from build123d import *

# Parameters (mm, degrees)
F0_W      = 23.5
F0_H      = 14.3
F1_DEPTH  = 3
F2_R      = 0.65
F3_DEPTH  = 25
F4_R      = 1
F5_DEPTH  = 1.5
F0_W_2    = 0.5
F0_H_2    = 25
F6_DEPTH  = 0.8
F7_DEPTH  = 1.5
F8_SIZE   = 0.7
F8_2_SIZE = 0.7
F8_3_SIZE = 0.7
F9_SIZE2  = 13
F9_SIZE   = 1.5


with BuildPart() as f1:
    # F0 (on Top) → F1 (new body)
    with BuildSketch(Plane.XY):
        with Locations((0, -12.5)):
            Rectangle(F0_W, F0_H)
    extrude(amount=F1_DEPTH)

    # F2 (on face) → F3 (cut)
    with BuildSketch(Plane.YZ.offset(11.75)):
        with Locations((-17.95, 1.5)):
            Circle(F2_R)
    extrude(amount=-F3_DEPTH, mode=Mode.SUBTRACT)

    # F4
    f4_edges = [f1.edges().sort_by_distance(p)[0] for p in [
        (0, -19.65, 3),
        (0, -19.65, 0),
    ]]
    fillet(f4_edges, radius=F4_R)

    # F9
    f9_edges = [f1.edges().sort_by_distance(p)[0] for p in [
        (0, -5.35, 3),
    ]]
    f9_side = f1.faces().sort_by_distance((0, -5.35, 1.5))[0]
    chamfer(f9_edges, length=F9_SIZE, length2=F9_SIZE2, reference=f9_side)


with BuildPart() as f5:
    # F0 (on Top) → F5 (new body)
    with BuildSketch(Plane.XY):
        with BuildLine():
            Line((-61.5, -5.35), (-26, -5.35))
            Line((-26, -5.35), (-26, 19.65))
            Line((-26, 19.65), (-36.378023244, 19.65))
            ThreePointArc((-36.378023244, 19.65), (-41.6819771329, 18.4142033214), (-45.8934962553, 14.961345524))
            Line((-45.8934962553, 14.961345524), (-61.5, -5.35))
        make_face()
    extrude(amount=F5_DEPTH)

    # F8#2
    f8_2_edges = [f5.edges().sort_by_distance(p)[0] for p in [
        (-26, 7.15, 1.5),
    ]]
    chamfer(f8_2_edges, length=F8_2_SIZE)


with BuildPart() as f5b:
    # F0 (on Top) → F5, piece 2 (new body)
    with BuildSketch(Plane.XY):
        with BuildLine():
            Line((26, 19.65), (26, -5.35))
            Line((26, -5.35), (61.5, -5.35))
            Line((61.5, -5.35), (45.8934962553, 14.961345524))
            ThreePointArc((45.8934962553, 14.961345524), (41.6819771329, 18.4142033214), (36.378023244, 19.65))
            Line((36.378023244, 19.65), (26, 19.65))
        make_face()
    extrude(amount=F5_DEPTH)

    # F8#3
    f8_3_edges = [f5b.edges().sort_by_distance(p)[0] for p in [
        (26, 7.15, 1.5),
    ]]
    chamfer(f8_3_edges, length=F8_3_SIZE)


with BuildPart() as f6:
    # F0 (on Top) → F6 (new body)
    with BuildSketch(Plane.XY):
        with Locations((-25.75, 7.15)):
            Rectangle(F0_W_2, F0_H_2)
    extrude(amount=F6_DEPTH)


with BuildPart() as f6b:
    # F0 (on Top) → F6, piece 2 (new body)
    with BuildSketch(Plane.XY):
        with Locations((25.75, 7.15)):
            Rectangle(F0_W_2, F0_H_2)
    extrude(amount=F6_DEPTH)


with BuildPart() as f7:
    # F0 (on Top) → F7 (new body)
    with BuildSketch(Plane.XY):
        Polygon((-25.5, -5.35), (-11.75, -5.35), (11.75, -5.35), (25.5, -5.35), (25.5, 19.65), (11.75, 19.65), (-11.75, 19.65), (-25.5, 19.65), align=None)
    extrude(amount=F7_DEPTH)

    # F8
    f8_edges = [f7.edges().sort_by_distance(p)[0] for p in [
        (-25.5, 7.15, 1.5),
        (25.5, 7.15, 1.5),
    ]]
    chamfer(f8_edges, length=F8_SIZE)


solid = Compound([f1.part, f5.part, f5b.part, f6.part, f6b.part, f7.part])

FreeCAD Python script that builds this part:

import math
import FreeCAD as App
import Part
import Sketcher

V = App.Vector


def edges_at(feature, points):
    """Names of the edges that pass closest to the given points."""
    edges = feature.Shape.Edges
    near = lambda p: min(range(len(edges)), key=lambda i: edges[i].distToShape(Part.Vertex(*p))[0])
    return sorted({f"Edge{near(p) + 1}" for p in points})

doc = App.newDocument("Part")
params = doc.addObject("Spreadsheet::Sheet", "Params")
for row, (alias, value) in enumerate([
    ("sketch1_width", "23.5 mm"),
    ("sketch1_height", "14.3 mm"),
    ("pad1_length", "3 mm"),
    ("sketch2_diameter", "1.3 mm"),
    ("pocket1_length", "25 mm"),
    ("fillet_radius", "1 mm"),
    ("chamfer_size", "1.5 mm"),
    ("chamfer_size2", "13 mm"),
    ("sketch3_radius", "12 mm"),
    ("sketch3_height", "25 mm"),
    ("sketch3_width", "35.5 mm"),
    ("pad2_length", "1.5 mm"),
    ("chamfer2_size", "0.7 mm"),
    ("sketch4_radius", "12 mm"),
    ("sketch4_height", "25 mm"),
    ("sketch4_width", "35.5 mm"),
    ("pad3_length", "1.5 mm"),
    ("chamfer3_size", "0.7 mm"),
    ("sketch5_height", "25 mm"),
    ("sketch5_width", "0.5 mm"),
    ("pad4_length", "0.8 mm"),
    ("sketch6_height", "25 mm"),
    ("sketch6_width", "0.5 mm"),
    ("pad5_length", "0.8 mm"),
    ("sketch7_width", "51 mm"),
    ("sketch7_height", "25 mm"),
    ("pad6_length", "1.5 mm"),
    ("chamfer4_size", "0.7 mm"),
], start=1):
    params.set(f"A{row}", alias)
    params.set(f"B{row}", "=" + value)
    params.setAlias(f"B{row}", alias)

body = doc.addObject("PartDesign::Body", "Body")

sketch1 = body.newObject("Sketcher::SketchObject", "Sketch")
sketch1.AttachmentSupport = (doc.getObject("XY_Plane"), [""])
sketch1.MapMode = "FlatFace"
sketch1.addGeometry([
    Part.LineSegment(V(-12, -5, 0), V(-12, -20, 0)),
    Part.LineSegment(V(-12, -20, 0), V(12, -20, 0)),
    Part.LineSegment(V(12, -20, 0), V(12, -5, 0)),
    Part.LineSegment(V(12, -5, 0), V(-12, -5, 0)),
], False)
sketch1.addConstraint([
    Sketcher.Constraint("Coincident", 0, 2, 1, 1),
    Sketcher.Constraint("Coincident", 1, 2, 2, 1),
    Sketcher.Constraint("Coincident", 2, 2, 3, 1),
    Sketcher.Constraint("Coincident", 3, 2, 0, 1),
    Sketcher.Constraint("Vertical", 0),
    Sketcher.Constraint("Horizontal", 1),
    Sketcher.Constraint("Vertical", 2),
    Sketcher.Constraint("Horizontal", 3),
    Sketcher.Constraint("DistanceX", 1, 1, 1, 2, 23.5),
    Sketcher.Constraint("DistanceY", 0, 2, 0, 1, 14.3),
    Sketcher.Constraint("DistanceX", 0, 2, -1, 1, 11.75),
    Sketcher.Constraint("DistanceY", 0, 2, -1, 1, 19.65),
])
sketch1.setExpression("Constraints[8]", "Params.sketch1_width")
sketch1.setExpression("Constraints[9]", "Params.sketch1_height")
pad1 = body.newObject("PartDesign::Pad", "Pad")
pad1.Profile = sketch1
pad1.setExpression("Length", "Params.pad1_length")

sketch2 = body.newObject("Sketcher::SketchObject", "Sketch001")
sketch2.AttachmentSupport = (doc.getObject("YZ_Plane"), [""])
sketch2.MapMode = "FlatFace"
sketch2.AttachmentOffset = App.Placement(V(0, 0, 11.75), App.Rotation())
sketch2.addGeometry(Part.Circle(V(-17.9, 1.5, 0), V(0, 0, 1), 0.7), False)
sketch2.addConstraint([
    Sketcher.Constraint("Diameter", 0, 1.3),
    Sketcher.Constraint("DistanceY", -1, 1, 0, 3, 1.5),
    Sketcher.Constraint("DistanceX", 0, 3, -1, 1, 17.95),
])
sketch2.setExpression("Constraints[0]", "Params.sketch2_diameter")
pocket1 = body.newObject("PartDesign::Pocket", "Pocket")
pocket1.Profile = sketch2
pocket1.setExpression("Length", "Params.pocket1_length")
doc.recompute()

fillet = body.newObject("PartDesign::Fillet", "Fillet")
fillet.Base = (pocket1, edges_at(pocket1, [(0, -19.65, 3), (0, -19.65, 0)]))
fillet.setExpression("Radius", "Params.fillet_radius")
doc.recompute()

chamfer = body.newObject("PartDesign::Chamfer", "Chamfer")
chamfer.Base = (fillet, edges_at(fillet, [(0, -5.35, 3)]))
chamfer.ChamferType = "Two distances"
chamfer.setExpression("Size", "Params.chamfer_size")
chamfer.setExpression("Size2", "Params.chamfer_size2")
body2 = doc.addObject("PartDesign::Body", "Body001")

sketch3 = body2.newObject("Sketcher::SketchObject", "Sketch002")
sketch3.AttachmentSupport = (doc.getObject("XY_Plane001"), [""])
sketch3.MapMode = "FlatFace"
sketch3.addGeometry([
    Part.LineSegment(V(-62, -5, 0), V(-26, -5, 0)),
    Part.LineSegment(V(-26, -5, 0), V(-26, 20, 0)),
    Part.LineSegment(V(-26, 20, 0), V(-36, 20, 0)),
    Part.ArcOfCircle(Part.Circle(V(-36, 8, 0), V(0, 0, 1), 12), math.radians(90), math.radians(142)),
    Part.LineSegment(V(-46, 15, 0), V(-62, -5, 0)),
], False)
sketch3.addConstraint([
    Sketcher.Constraint("Coincident", 0, 2, 1, 1),
    Sketcher.Constraint("Coincident", 1, 2, 2, 1),
    Sketcher.Constraint("Tangent", 2, 2, 3, 1),
    Sketcher.Constraint("Tangent", 3, 2, 4, 1),
    Sketcher.Constraint("Coincident", 4, 2, 0, 1),
    Sketcher.Constraint("Horizontal", 0),
    Sketcher.Constraint("Vertical", 1),
    Sketcher.Constraint("Horizontal", 2),
    Sketcher.Constraint("Radius", 3, 12.0),
    Sketcher.Constraint("DistanceY", 1, 1, 1, 2, 25.0),
    Sketcher.Constraint("DistanceX", 0, 1, 0, 2, 35.5),
    Sketcher.Constraint("DistanceX", 0, 2, -1, 1, 26.0),
    Sketcher.Constraint("DistanceY", -1, 1, 3, 3, 7.65),
    Sketcher.Constraint("DistanceX", 2, 2, 2, 1, 10.378023),
])
sketch3.setExpression("Constraints[8]", "Params.sketch3_radius")
sketch3.setExpression("Constraints[9]", "Params.sketch3_height")
sketch3.setExpression("Constraints[10]", "Params.sketch3_width")
pad2 = body2.newObject("PartDesign::Pad", "Pad001")
pad2.Profile = sketch3
pad2.setExpression("Length", "Params.pad2_length")
doc.recompute()

chamfer2 = body2.newObject("PartDesign::Chamfer", "Chamfer001")
chamfer2.Base = (pad2, edges_at(pad2, [(-26, 7.15, 1.5)]))
chamfer2.setExpression("Size", "Params.chamfer2_size")
body3 = doc.addObject("PartDesign::Body", "Body002")

sketch4 = body3.newObject("Sketcher::SketchObject", "Sketch003")
sketch4.AttachmentSupport = (doc.getObject("XY_Plane002"), [""])
sketch4.MapMode = "FlatFace"
sketch4.addGeometry([
    Part.LineSegment(V(26, 20, 0), V(26, -5, 0)),
    Part.LineSegment(V(26, -5, 0), V(62, -5, 0)),
    Part.LineSegment(V(62, -5, 0), V(46, 15, 0)),
    Part.ArcOfCircle(Part.Circle(V(36, 8, 0), V(0, 0, 1), 12), math.radians(38), math.radians(90)),
    Part.LineSegment(V(36, 20, 0), V(26, 20, 0)),
], False)
sketch4.addConstraint([
    Sketcher.Constraint("Coincident", 0, 2, 1, 1),
    Sketcher.Constraint("Coincident", 1, 2, 2, 1),
    Sketcher.Constraint("Tangent", 2, 2, 3, 1),
    Sketcher.Constraint("Tangent", 3, 2, 4, 1),
    Sketcher.Constraint("Coincident", 4, 2, 0, 1),
    Sketcher.Constraint("Vertical", 0),
    Sketcher.Constraint("Horizontal", 1),
    Sketcher.Constraint("Horizontal", 4),
    Sketcher.Constraint("Radius", 3, 12.0),
    Sketcher.Constraint("DistanceY", 0, 2, 0, 1, 25.0),
    Sketcher.Constraint("DistanceX", 1, 1, 1, 2, 35.5),
    Sketcher.Constraint("DistanceX", -1, 1, 0, 2, 26.0),
    Sketcher.Constraint("DistanceY", -1, 1, 3, 3, 7.65),
    Sketcher.Constraint("DistanceX", 4, 2, 4, 1, 10.378023),
])
sketch4.setExpression("Constraints[8]", "Params.sketch4_radius")
sketch4.setExpression("Constraints[9]", "Params.sketch4_height")
sketch4.setExpression("Constraints[10]", "Params.sketch4_width")
pad3 = body3.newObject("PartDesign::Pad", "Pad002")
pad3.Profile = sketch4
pad3.setExpression("Length", "Params.pad3_length")
doc.recompute()

chamfer3 = body3.newObject("PartDesign::Chamfer", "Chamfer002")
chamfer3.Base = (pad3, edges_at(pad3, [(26, 7.15, 1.5)]))
chamfer3.setExpression("Size", "Params.chamfer3_size")
body4 = doc.addObject("PartDesign::Body", "Body003")

sketch5 = body4.newObject("Sketcher::SketchObject", "Sketch004")
sketch5.AttachmentSupport = (doc.getObject("XY_Plane003"), [""])
sketch5.MapMode = "FlatFace"
sketch5.addGeometry([
    Part.LineSegment(V(-26, 19.6, 0), V(-26, -5.3, 0)),
    Part.LineSegment(V(-26, -5.3, 0), V(-25.5, -5.3, 0)),
    Part.LineSegment(V(-25.5, -5.3, 0), V(-25.5, 19.6, 0)),
    Part.LineSegment(V(-25.5, 19.6, 0), V(-26, 19.6, 0)),
], False)
sketch5.addConstraint([
    Sketcher.Constraint("Coincident", 0, 2, 1, 1),
    Sketcher.Constraint("Coincident", 1, 2, 2, 1),
    Sketcher.Constraint("Coincident", 2, 2, 3, 1),
    Sketcher.Constraint("Coincident", 3, 2, 0, 1),
    Sketcher.Constraint("Vertical", 0),
    Sketcher.Constraint("Horizontal", 1),
    Sketcher.Constraint("Vertical", 2),
    Sketcher.Constraint("Horizontal", 3),
    Sketcher.Constraint("DistanceY", 0, 2, 0, 1, 25.0),
    Sketcher.Constraint("DistanceX", 1, 1, 1, 2, 0.5),
    Sketcher.Constraint("DistanceX", 0, 2, -1, 1, 26.0),
    Sketcher.Constraint("DistanceY", 0, 2, -1, 1, 5.35),
])
sketch5.setExpression("Constraints[8]", "Params.sketch5_height")
sketch5.setExpression("Constraints[9]", "Params.sketch5_width")
pad4 = body4.newObject("PartDesign::Pad", "Pad003")
pad4.Profile = sketch5
pad4.setExpression("Length", "Params.pad4_length")
body5 = doc.addObject("PartDesign::Body", "Body004")

sketch6 = body5.newObject("Sketcher::SketchObject", "Sketch005")
sketch6.AttachmentSupport = (doc.getObject("XY_Plane004"), [""])
sketch6.MapMode = "FlatFace"
sketch6.addGeometry([
    Part.LineSegment(V(25.5, 19.6, 0), V(25.5, -5.3, 0)),
    Part.LineSegment(V(25.5, -5.3, 0), V(26, -5.3, 0)),
    Part.LineSegment(V(26, -5.3, 0), V(26, 19.6, 0)),
    Part.LineSegment(V(26, 19.6, 0), V(25.5, 19.6, 0)),
], False)
sketch6.addConstraint([
    Sketcher.Constraint("Coincident", 0, 2, 1, 1),
    Sketcher.Constraint("Coincident", 1, 2, 2, 1),
    Sketcher.Constraint("Coincident", 2, 2, 3, 1),
    Sketcher.Constraint("Coincident", 3, 2, 0, 1),
    Sketcher.Constraint("Vertical", 0),
    Sketcher.Constraint("Horizontal", 1),
    Sketcher.Constraint("Vertical", 2),
    Sketcher.Constraint("Horizontal", 3),
    Sketcher.Constraint("DistanceY", 0, 2, 0, 1, 25.0),
    Sketcher.Constraint("DistanceX", 1, 1, 1, 2, 0.5),
    Sketcher.Constraint("DistanceX", -1, 1, 1, 2, 26.0),
    Sketcher.Constraint("DistanceY", 0, 2, -1, 1, 5.35),
])
sketch6.setExpression("Constraints[8]", "Params.sketch6_height")
sketch6.setExpression("Constraints[9]", "Params.sketch6_width")
pad5 = body5.newObject("PartDesign::Pad", "Pad004")
pad5.Profile = sketch6
pad5.setExpression("Length", "Params.pad5_length")
body6 = doc.addObject("PartDesign::Body", "Body005")

sketch7 = body6.newObject("Sketcher::SketchObject", "Sketch006")
sketch7.AttachmentSupport = (doc.getObject("XY_Plane005"), [""])
sketch7.MapMode = "FlatFace"
sketch7.addGeometry([
    Part.LineSegment(V(-26, -5, 0), V(26, -5, 0)),
    Part.LineSegment(V(26, -5, 0), V(26, 20, 0)),
    Part.LineSegment(V(26, 20, 0), V(-26, 20, 0)),
    Part.LineSegment(V(-26, 20, 0), V(-26, -5, 0)),
], False)
sketch7.addConstraint([
    Sketcher.Constraint("Coincident", 0, 2, 1, 1),
    Sketcher.Constraint("Coincident", 1, 2, 2, 1),
    Sketcher.Constraint("Coincident", 2, 2, 3, 1),
    Sketcher.Constraint("Coincident", 3, 2, 0, 1),
    Sketcher.Constraint("Horizontal", 0),
    Sketcher.Constraint("Vertical", 1),
    Sketcher.Constraint("Horizontal", 2),
    Sketcher.Constraint("Vertical", 3),
    Sketcher.Constraint("DistanceX", 0, 1, 0, 2, 51.0),
    Sketcher.Constraint("DistanceY", 1, 1, 1, 2, 25.0),
    Sketcher.Constraint("DistanceX", -1, 1, 0, 2, 25.5),
    Sketcher.Constraint("DistanceY", 0, 2, -1, 1, 5.35),
])
sketch7.setExpression("Constraints[8]", "Params.sketch7_width")
sketch7.setExpression("Constraints[9]", "Params.sketch7_height")
pad6 = body6.newObject("PartDesign::Pad", "Pad005")
pad6.Profile = sketch7
pad6.setExpression("Length", "Params.pad6_length")
doc.recompute()

chamfer4 = body6.newObject("PartDesign::Chamfer", "Chamfer003")
chamfer4.Base = (pad6, edges_at(pad6, [(-25.5, 7.15, 1.5), (25.5, 7.15, 1.5)]))
chamfer4.setExpression("Size", "Params.chamfer4_size")

doc.recompute()
